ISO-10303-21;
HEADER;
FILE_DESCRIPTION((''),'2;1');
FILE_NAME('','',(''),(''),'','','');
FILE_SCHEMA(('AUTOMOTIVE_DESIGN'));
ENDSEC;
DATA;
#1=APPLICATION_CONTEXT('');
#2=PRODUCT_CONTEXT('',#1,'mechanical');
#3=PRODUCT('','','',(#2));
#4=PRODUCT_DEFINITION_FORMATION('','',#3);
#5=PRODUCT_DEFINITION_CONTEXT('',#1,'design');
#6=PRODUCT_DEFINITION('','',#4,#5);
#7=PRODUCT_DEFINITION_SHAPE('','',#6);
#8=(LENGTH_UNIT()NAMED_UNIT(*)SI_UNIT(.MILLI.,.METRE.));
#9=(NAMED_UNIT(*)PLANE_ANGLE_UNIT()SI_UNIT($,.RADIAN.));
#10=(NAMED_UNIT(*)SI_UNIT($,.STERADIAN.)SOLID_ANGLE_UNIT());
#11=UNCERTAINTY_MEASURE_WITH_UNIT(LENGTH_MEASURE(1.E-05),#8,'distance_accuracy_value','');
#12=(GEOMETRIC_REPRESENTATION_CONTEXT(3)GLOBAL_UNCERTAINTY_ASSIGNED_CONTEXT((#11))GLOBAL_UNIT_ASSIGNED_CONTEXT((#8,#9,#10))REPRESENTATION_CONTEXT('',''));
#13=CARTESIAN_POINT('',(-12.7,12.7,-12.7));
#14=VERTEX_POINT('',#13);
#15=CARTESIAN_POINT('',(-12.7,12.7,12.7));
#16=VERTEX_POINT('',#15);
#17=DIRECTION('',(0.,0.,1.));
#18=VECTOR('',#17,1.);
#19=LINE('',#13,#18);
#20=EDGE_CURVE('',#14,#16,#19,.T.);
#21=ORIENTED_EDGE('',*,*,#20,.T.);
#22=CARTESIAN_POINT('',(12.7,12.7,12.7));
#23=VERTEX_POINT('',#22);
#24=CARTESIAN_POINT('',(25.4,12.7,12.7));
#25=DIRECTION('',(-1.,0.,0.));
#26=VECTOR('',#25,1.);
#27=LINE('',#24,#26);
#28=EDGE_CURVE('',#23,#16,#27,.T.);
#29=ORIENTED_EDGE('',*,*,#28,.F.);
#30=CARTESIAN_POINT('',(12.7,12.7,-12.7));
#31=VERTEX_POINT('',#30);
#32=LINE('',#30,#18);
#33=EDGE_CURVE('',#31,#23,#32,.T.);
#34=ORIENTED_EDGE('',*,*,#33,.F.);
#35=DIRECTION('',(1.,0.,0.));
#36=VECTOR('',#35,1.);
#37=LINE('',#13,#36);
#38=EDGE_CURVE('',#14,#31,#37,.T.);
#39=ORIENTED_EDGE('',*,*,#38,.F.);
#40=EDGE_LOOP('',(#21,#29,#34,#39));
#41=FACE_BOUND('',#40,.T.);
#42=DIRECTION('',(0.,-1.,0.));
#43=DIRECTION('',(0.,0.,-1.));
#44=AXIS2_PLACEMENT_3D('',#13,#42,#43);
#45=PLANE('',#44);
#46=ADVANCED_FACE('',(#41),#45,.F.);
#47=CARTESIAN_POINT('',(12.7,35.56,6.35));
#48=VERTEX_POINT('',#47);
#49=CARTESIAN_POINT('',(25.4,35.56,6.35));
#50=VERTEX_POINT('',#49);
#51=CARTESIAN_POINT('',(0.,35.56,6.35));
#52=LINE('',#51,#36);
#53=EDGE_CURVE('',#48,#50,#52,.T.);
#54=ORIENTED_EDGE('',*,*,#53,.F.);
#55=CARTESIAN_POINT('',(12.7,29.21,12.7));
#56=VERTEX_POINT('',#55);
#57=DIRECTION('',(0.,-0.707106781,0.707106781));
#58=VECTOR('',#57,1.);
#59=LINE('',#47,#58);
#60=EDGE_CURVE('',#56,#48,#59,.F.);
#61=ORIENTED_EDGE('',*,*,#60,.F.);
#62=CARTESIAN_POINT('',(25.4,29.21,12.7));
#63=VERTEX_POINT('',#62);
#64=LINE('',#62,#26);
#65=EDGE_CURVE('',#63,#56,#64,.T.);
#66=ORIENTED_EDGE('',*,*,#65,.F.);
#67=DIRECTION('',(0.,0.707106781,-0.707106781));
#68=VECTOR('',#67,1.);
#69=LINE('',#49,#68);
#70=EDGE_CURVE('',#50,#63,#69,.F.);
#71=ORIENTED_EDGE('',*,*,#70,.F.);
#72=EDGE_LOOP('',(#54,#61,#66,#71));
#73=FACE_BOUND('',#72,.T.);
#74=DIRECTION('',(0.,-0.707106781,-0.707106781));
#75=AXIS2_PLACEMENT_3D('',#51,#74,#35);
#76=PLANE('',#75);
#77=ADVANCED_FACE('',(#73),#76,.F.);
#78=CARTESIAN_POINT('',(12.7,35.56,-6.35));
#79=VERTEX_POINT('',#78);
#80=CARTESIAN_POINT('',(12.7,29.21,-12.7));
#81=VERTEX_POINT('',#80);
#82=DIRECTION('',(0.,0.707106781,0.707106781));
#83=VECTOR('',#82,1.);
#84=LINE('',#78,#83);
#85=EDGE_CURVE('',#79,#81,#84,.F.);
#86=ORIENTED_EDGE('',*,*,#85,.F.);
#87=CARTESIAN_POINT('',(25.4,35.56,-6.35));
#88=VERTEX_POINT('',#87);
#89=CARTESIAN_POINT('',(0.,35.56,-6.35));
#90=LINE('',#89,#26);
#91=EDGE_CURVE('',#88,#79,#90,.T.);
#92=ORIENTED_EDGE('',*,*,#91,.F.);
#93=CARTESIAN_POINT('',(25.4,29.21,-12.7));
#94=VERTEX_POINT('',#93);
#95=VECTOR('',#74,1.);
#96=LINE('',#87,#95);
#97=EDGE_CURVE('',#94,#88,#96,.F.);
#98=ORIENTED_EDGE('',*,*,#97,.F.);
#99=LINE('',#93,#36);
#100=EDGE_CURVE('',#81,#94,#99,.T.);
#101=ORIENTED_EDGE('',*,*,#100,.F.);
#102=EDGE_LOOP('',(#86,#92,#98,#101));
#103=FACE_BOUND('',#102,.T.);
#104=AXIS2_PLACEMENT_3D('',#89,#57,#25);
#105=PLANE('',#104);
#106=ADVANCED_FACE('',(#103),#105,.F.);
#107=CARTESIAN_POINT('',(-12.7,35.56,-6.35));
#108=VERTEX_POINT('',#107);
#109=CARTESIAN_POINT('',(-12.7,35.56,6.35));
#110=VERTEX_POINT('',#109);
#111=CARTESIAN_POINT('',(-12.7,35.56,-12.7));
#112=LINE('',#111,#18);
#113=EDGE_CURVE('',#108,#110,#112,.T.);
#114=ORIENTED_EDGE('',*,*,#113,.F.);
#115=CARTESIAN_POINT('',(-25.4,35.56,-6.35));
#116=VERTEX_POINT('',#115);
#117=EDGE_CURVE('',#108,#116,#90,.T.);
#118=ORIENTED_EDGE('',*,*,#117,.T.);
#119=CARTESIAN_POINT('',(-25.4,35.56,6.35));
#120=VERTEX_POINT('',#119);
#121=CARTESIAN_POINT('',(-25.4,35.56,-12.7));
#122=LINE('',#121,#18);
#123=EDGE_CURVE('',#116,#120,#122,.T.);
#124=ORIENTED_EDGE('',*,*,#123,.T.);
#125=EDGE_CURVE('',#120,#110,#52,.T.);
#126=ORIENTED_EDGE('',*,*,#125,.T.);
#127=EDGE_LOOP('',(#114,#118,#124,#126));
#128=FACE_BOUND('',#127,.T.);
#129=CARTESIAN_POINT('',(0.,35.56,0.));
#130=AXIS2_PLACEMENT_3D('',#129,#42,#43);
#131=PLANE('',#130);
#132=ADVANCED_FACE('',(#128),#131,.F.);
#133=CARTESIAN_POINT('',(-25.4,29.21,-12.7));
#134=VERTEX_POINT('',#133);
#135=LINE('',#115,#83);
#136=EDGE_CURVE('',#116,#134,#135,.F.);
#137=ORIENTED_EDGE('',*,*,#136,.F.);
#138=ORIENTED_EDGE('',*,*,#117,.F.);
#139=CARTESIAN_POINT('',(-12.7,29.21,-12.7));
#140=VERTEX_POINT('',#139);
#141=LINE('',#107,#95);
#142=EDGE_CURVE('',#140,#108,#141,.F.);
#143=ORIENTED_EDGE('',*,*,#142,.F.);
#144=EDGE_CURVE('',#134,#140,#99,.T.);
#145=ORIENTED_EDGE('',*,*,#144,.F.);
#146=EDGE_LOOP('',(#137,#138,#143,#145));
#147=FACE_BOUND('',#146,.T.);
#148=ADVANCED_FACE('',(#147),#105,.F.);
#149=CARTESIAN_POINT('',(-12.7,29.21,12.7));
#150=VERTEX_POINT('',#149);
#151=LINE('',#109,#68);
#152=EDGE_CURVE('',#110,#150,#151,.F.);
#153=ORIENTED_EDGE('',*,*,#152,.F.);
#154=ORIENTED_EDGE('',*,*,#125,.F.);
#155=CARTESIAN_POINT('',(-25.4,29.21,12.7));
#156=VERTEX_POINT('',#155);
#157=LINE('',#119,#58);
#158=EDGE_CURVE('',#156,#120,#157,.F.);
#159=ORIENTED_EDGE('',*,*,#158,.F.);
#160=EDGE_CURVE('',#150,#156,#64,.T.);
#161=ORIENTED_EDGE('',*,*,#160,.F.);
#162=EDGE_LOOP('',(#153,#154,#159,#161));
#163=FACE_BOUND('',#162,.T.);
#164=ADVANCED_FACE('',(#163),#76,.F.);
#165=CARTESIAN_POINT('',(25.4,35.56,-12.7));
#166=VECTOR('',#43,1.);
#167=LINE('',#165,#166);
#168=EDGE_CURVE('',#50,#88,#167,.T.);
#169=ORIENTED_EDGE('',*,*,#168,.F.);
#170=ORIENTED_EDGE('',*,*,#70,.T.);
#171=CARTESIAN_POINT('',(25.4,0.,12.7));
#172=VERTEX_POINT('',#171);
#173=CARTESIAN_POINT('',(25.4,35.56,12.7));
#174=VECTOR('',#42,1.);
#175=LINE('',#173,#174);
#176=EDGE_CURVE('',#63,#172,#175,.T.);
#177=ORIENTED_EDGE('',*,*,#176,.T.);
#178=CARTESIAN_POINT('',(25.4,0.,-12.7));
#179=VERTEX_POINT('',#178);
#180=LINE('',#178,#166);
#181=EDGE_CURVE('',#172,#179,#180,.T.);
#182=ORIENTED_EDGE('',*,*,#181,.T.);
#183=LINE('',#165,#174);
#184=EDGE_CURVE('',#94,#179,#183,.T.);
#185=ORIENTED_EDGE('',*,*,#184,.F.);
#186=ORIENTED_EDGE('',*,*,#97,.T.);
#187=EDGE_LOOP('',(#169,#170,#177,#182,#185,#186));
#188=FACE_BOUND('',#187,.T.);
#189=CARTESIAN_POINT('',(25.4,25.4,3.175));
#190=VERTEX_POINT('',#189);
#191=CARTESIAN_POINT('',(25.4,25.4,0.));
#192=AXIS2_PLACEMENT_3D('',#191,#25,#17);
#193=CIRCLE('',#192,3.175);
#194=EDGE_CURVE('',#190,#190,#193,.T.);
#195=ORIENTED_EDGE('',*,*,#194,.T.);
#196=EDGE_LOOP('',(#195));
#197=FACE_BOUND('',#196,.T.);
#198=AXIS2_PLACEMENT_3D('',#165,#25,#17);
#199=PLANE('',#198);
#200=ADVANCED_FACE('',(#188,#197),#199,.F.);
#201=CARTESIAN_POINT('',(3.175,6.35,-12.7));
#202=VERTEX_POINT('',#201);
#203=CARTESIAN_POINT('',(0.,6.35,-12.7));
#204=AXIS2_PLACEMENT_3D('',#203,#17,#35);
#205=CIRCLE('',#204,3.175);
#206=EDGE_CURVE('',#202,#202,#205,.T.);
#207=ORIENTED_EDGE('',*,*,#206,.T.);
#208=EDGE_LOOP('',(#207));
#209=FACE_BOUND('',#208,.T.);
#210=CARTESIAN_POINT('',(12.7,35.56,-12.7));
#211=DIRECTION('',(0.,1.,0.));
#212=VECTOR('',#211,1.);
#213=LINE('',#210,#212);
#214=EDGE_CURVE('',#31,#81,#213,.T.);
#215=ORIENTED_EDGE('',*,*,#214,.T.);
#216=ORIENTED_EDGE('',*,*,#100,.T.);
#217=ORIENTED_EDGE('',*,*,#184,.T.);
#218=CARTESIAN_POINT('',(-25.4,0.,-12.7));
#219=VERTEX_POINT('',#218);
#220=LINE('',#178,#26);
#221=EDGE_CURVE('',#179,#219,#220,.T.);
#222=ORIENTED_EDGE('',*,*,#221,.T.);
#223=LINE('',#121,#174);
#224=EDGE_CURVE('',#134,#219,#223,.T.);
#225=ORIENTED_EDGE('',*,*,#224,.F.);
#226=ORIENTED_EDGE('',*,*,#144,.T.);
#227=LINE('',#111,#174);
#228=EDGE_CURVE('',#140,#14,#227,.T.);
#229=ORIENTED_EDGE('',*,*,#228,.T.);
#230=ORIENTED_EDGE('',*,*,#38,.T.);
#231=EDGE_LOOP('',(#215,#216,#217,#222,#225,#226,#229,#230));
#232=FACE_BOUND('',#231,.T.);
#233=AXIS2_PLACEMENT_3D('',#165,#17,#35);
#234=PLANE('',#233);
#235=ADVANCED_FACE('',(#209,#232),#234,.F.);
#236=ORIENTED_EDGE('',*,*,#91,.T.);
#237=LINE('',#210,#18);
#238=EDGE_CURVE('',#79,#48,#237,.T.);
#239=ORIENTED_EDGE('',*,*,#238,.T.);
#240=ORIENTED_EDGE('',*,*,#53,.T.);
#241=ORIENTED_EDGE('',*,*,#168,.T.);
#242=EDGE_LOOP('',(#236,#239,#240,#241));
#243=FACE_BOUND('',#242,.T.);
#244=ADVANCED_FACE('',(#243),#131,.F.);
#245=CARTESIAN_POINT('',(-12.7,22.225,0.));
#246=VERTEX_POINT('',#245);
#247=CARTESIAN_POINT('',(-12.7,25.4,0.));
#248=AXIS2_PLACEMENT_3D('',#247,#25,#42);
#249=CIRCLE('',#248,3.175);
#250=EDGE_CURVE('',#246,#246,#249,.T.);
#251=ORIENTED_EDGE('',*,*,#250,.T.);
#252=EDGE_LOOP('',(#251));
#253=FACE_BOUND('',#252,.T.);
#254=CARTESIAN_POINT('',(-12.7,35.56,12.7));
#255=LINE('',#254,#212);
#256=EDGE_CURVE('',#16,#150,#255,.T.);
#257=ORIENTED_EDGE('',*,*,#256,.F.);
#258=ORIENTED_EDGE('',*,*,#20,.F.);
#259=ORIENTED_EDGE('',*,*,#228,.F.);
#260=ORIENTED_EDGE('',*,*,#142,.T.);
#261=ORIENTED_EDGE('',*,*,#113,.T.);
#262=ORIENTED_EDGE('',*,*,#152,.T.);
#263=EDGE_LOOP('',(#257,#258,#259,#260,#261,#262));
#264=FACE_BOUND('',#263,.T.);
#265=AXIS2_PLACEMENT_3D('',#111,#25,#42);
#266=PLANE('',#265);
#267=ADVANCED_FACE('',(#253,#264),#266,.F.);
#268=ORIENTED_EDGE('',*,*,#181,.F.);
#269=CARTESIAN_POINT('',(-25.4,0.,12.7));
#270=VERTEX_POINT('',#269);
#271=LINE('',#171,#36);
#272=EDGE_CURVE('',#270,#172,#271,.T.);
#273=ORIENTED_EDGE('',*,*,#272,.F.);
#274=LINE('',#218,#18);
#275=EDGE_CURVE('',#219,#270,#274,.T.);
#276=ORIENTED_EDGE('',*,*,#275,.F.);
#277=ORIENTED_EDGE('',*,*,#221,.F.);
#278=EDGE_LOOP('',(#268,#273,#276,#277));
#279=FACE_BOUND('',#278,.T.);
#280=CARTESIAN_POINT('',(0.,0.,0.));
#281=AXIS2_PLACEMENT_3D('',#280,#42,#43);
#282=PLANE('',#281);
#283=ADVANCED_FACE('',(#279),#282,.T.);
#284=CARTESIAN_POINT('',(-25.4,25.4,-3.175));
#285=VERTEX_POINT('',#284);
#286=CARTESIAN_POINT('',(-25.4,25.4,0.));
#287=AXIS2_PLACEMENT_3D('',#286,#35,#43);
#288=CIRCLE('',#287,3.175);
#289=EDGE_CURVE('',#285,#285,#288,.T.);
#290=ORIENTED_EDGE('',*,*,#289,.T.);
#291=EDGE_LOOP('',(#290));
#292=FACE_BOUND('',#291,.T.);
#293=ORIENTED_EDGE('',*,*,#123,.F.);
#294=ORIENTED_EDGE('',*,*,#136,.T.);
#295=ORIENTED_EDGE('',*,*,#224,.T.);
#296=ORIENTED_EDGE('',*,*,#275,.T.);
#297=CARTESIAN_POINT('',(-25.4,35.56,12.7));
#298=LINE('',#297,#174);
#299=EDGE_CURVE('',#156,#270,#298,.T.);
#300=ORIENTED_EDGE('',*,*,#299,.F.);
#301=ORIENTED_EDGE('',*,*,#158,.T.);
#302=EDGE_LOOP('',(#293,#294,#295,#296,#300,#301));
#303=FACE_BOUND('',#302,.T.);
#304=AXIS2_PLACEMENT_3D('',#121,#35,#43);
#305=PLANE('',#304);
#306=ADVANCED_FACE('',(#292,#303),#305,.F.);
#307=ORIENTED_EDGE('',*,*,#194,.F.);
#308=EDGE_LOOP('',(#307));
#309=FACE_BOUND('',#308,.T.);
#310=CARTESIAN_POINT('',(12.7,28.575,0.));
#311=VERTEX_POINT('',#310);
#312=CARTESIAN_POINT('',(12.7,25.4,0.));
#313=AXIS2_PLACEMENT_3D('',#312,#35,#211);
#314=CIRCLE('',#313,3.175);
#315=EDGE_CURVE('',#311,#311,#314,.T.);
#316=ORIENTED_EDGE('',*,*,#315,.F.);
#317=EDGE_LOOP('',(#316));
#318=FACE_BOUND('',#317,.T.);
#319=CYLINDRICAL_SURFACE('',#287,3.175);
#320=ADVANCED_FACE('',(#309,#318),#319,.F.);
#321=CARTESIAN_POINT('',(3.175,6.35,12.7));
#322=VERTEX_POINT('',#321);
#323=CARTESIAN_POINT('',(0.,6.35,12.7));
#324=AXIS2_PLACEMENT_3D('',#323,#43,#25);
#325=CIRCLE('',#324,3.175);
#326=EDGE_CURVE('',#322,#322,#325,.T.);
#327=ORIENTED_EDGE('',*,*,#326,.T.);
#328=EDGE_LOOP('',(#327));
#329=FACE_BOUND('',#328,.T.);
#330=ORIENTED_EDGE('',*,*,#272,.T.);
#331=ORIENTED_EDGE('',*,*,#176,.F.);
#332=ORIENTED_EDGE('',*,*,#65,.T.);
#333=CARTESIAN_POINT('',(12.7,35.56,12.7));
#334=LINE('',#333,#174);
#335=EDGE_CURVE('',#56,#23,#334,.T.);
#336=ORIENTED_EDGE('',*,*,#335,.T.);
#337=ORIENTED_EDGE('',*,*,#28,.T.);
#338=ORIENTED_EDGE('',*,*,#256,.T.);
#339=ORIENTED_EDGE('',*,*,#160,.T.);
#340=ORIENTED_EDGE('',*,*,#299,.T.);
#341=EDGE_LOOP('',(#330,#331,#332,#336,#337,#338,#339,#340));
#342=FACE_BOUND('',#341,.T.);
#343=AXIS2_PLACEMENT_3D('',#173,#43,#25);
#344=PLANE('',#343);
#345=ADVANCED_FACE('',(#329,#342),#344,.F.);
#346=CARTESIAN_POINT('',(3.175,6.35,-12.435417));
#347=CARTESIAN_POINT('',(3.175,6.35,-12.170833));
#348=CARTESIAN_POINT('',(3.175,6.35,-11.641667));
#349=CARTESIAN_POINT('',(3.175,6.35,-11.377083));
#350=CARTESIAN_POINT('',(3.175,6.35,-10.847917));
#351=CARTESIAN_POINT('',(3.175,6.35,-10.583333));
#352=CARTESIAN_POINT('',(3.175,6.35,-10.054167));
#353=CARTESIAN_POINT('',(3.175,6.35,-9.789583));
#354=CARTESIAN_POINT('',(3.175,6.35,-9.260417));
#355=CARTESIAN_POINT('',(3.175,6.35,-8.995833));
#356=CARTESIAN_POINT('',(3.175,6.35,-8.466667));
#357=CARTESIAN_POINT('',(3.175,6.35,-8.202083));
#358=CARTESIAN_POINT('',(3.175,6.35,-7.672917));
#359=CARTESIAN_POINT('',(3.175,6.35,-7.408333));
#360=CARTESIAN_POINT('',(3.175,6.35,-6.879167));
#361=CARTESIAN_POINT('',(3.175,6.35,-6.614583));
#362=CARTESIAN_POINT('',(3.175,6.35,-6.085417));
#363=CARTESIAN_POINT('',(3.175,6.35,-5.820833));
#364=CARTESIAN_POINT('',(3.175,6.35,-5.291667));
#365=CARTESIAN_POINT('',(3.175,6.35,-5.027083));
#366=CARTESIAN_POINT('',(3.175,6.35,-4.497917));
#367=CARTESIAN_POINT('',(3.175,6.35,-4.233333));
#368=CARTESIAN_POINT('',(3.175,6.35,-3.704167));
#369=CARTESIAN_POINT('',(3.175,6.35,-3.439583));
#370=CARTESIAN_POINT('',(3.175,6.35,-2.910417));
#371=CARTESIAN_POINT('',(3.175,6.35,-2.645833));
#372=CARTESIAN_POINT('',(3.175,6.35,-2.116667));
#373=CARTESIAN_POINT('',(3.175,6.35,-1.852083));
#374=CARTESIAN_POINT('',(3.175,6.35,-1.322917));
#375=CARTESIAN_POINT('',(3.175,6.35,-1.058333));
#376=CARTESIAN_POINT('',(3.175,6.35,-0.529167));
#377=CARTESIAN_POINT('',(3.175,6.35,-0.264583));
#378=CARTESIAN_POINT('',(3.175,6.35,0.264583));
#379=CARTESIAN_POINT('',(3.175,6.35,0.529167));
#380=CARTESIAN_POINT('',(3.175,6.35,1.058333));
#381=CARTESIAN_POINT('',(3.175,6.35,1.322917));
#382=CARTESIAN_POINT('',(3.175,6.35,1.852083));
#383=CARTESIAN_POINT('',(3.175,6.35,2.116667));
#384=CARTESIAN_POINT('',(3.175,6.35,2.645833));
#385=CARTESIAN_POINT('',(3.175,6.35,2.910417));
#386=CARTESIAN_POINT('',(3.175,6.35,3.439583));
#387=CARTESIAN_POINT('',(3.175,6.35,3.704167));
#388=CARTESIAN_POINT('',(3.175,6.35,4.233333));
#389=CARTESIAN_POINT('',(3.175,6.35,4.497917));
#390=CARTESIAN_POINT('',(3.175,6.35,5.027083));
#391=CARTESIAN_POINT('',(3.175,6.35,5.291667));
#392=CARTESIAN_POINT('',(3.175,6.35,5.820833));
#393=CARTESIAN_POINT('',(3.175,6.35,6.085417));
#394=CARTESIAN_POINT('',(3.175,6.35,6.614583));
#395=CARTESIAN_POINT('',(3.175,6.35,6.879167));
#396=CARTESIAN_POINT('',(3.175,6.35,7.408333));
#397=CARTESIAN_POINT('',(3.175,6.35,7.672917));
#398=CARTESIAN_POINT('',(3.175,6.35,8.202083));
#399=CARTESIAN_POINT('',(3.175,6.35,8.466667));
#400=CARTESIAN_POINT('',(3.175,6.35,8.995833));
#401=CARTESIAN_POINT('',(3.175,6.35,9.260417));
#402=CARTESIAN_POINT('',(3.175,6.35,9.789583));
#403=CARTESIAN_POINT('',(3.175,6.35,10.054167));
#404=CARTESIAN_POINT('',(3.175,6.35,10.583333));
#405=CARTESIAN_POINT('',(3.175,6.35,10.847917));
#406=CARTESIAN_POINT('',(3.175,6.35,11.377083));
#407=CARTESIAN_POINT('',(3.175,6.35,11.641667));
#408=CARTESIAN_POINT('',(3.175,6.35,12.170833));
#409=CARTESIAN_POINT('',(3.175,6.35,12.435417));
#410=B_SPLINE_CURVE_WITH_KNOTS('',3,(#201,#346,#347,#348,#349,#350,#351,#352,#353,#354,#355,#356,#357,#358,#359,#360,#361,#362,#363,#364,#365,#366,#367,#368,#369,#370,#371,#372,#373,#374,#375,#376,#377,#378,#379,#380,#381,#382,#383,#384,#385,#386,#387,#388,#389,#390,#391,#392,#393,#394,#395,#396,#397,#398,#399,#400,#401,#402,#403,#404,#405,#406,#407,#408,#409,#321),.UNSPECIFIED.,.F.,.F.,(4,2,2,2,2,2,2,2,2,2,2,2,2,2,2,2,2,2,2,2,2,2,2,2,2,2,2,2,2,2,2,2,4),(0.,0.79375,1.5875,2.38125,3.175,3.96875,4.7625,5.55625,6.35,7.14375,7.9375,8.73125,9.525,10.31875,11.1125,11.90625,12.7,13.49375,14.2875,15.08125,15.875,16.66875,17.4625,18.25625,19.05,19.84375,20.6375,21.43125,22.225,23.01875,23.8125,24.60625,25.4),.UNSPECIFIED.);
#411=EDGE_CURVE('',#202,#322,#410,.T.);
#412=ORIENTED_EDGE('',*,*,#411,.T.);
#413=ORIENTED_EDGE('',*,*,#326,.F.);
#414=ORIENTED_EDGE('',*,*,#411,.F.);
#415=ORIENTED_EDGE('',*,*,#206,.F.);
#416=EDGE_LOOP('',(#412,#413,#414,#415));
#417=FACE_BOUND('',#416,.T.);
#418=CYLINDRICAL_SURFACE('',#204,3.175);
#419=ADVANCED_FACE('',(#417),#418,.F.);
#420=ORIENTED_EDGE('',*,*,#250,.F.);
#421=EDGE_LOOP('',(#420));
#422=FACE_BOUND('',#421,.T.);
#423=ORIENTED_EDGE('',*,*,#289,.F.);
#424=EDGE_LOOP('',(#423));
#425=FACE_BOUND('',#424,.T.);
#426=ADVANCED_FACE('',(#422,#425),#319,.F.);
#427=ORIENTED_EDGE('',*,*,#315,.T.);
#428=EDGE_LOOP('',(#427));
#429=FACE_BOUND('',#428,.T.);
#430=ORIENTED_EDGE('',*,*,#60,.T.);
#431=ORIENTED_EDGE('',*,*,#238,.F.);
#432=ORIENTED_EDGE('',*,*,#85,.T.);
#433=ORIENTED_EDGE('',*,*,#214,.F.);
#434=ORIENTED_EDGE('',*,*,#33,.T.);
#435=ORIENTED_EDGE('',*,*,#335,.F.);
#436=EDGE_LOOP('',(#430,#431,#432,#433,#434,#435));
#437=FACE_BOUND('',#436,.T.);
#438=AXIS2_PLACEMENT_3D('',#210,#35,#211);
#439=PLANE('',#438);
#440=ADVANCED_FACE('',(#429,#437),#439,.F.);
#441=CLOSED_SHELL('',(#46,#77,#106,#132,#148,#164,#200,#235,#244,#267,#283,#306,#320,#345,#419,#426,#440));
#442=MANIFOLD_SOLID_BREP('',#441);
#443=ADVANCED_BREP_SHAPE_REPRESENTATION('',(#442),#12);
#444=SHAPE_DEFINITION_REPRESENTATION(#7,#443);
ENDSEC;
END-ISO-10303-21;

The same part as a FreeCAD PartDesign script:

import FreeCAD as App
import Part
import Sketcher

V = App.Vector
Q = App.Units.Quantity


def edges_at(feature, points):
    """Names of the edges that pass closest to the given points."""
    edges = feature.Shape.Edges
    near = lambda p: min(range(len(edges)), key=lambda i: edges[i].distToShape(Part.Vertex(*p))[0])
    return sorted({f"Edge{near(p) + 1}" for p in points})


def add_polygon(sketch, points):
    """Adds a closed chain of lines whose ends are joined by coincident constraints."""
    first, n = sketch.GeometryCount, len(points)
    for a, b in zip(points, points[1:] + points[:1]):
        sketch.addGeometry(Part.LineSegment(App.Vector(*a, 0), App.Vector(*b, 0)), False)
    for i in range(n):
        sketch.addConstraint(Sketcher.Constraint("Coincident", first + i, 2, first + (i + 1) % n, 1))

doc = App.newDocument("Part")
body = doc.addObject("PartDesign::Body", "Body")

sketch1 = body.newObject("Sketcher::SketchObject", "Sketch")
sketch1.AttachmentSupport = (doc.getObject("XZ_Plane"), [""])
sketch1.MapMode = "FlatFace"
add_polygon(sketch1, [(-25, -13), (-25, 13), (25, 13), (25, -13)])
sketch1.addConstraint([
    Sketcher.Constraint("Vertical", 0),
    Sketcher.Constraint("Horizontal", 1),
    Sketcher.Constraint("Vertical", 2),
    Sketcher.Constraint("Horizontal", 3),
    Sketcher.Constraint("Symmetric", 0, 2, 2, 2, -1, 1),
    Sketcher.Constraint("DistanceX", 1, 1, 1, 2, Q("2 in")),
    Sketcher.Constraint("DistanceY", 0, 1, 0, 2, Q("1 in")),
])
pad1 = body.newObject("PartDesign::Pad", "Pad")
pad1.Profile = sketch1
pad1.Length = Q("1.4 in")
pad1.Reversed = True

sketch2 = body.newObject("Sketcher::SketchObject", "Sketch001")
sketch2.AttachmentSupport = (doc.getObject("XY_Plane"), [""])
sketch2.MapMode = "FlatFace"
sketch2.AttachmentOffset = App.Placement(V(0, 0, 0.5 * 25.4), App.Rotation())
sketch2.addGeometry(Part.Circle(V(0, 6.3, 0), V(0, 0, 1), 3.2), False)
add_polygon(sketch2, [(-12.7, 35.6), (-12.7, 12.7), (12.7, 12.7), (12.7, 35.6)])
sketch2.addConstraint([
    Sketcher.Constraint("Vertical", 1),
    Sketcher.Constraint("Horizontal", 2),
    Sketcher.Constraint("Vertical", 3),
    Sketcher.Constraint("Horizontal", 4),
    Sketcher.Constraint("PointOnObject", 0, 3, -2),
    Sketcher.Constraint("Diameter", 0, Q("0.25 in")),
    Sketcher.Constraint("DistanceX", 2, 1, 2, 2, Q("1 in")),
    Sketcher.Constraint("DistanceY", 1, 2, 1, 1, Q("0.9 in")),
    Sketcher.Constraint("DistanceX", 1, 2, -1, 1, Q("0.5 in")),
    Sketcher.Constraint("DistanceY", -1, 1, 1, 2, Q("0.5 in")),
    Sketcher.Constraint("DistanceY", -1, 1, 0, 3, Q("0.25 in")),
])
pocket1 = body.newObject("PartDesign::Pocket", "Pocket")
pocket1.Profile = sketch2
pocket1.Type = "ThroughAll"
pocket1.Midplane = True

sketch3 = body.newObject("Sketcher::SketchObject", "Sketch002")
sketch3.AttachmentSupport = (doc.getObject("YZ_Plane"), [""])
sketch3.MapMode = "FlatFace"
sketch3.AttachmentOffset = App.Placement(V(0, 0, 1 * 25.4), App.Rotation())
sketch3.addGeometry(Part.Circle(V(25.4, 0, 0), V(0, 0, 1), 3.2), False)
sketch3.addConstraint([
    Sketcher.Constraint("PointOnObject", 0, 3, -1),
    Sketcher.Constraint("Diameter", 0, Q("0.25 in")),
    Sketcher.Constraint("DistanceX", -1, 1, 0, 3, Q("1 in")),
])
pocket2 = body.newObject("PartDesign::Pocket", "Pocket001")
pocket2.Profile = sketch3
pocket2.Type = "ThroughAll"
pocket2.Midplane = True
doc.recompute()

chamfer = body.newObject("PartDesign::Chamfer", "Chamfer")
chamfer.Base = (pocket2, edges_at(pocket2, [
    (19.05, 35.56, -12.7),
    (19.05, 35.56, 12.7),
    (-19.05, 35.56, -12.7),
    (-19.05, 35.56, 12.7),
]))
chamfer.Size = Q("0.25 in")

doc.recompute()
